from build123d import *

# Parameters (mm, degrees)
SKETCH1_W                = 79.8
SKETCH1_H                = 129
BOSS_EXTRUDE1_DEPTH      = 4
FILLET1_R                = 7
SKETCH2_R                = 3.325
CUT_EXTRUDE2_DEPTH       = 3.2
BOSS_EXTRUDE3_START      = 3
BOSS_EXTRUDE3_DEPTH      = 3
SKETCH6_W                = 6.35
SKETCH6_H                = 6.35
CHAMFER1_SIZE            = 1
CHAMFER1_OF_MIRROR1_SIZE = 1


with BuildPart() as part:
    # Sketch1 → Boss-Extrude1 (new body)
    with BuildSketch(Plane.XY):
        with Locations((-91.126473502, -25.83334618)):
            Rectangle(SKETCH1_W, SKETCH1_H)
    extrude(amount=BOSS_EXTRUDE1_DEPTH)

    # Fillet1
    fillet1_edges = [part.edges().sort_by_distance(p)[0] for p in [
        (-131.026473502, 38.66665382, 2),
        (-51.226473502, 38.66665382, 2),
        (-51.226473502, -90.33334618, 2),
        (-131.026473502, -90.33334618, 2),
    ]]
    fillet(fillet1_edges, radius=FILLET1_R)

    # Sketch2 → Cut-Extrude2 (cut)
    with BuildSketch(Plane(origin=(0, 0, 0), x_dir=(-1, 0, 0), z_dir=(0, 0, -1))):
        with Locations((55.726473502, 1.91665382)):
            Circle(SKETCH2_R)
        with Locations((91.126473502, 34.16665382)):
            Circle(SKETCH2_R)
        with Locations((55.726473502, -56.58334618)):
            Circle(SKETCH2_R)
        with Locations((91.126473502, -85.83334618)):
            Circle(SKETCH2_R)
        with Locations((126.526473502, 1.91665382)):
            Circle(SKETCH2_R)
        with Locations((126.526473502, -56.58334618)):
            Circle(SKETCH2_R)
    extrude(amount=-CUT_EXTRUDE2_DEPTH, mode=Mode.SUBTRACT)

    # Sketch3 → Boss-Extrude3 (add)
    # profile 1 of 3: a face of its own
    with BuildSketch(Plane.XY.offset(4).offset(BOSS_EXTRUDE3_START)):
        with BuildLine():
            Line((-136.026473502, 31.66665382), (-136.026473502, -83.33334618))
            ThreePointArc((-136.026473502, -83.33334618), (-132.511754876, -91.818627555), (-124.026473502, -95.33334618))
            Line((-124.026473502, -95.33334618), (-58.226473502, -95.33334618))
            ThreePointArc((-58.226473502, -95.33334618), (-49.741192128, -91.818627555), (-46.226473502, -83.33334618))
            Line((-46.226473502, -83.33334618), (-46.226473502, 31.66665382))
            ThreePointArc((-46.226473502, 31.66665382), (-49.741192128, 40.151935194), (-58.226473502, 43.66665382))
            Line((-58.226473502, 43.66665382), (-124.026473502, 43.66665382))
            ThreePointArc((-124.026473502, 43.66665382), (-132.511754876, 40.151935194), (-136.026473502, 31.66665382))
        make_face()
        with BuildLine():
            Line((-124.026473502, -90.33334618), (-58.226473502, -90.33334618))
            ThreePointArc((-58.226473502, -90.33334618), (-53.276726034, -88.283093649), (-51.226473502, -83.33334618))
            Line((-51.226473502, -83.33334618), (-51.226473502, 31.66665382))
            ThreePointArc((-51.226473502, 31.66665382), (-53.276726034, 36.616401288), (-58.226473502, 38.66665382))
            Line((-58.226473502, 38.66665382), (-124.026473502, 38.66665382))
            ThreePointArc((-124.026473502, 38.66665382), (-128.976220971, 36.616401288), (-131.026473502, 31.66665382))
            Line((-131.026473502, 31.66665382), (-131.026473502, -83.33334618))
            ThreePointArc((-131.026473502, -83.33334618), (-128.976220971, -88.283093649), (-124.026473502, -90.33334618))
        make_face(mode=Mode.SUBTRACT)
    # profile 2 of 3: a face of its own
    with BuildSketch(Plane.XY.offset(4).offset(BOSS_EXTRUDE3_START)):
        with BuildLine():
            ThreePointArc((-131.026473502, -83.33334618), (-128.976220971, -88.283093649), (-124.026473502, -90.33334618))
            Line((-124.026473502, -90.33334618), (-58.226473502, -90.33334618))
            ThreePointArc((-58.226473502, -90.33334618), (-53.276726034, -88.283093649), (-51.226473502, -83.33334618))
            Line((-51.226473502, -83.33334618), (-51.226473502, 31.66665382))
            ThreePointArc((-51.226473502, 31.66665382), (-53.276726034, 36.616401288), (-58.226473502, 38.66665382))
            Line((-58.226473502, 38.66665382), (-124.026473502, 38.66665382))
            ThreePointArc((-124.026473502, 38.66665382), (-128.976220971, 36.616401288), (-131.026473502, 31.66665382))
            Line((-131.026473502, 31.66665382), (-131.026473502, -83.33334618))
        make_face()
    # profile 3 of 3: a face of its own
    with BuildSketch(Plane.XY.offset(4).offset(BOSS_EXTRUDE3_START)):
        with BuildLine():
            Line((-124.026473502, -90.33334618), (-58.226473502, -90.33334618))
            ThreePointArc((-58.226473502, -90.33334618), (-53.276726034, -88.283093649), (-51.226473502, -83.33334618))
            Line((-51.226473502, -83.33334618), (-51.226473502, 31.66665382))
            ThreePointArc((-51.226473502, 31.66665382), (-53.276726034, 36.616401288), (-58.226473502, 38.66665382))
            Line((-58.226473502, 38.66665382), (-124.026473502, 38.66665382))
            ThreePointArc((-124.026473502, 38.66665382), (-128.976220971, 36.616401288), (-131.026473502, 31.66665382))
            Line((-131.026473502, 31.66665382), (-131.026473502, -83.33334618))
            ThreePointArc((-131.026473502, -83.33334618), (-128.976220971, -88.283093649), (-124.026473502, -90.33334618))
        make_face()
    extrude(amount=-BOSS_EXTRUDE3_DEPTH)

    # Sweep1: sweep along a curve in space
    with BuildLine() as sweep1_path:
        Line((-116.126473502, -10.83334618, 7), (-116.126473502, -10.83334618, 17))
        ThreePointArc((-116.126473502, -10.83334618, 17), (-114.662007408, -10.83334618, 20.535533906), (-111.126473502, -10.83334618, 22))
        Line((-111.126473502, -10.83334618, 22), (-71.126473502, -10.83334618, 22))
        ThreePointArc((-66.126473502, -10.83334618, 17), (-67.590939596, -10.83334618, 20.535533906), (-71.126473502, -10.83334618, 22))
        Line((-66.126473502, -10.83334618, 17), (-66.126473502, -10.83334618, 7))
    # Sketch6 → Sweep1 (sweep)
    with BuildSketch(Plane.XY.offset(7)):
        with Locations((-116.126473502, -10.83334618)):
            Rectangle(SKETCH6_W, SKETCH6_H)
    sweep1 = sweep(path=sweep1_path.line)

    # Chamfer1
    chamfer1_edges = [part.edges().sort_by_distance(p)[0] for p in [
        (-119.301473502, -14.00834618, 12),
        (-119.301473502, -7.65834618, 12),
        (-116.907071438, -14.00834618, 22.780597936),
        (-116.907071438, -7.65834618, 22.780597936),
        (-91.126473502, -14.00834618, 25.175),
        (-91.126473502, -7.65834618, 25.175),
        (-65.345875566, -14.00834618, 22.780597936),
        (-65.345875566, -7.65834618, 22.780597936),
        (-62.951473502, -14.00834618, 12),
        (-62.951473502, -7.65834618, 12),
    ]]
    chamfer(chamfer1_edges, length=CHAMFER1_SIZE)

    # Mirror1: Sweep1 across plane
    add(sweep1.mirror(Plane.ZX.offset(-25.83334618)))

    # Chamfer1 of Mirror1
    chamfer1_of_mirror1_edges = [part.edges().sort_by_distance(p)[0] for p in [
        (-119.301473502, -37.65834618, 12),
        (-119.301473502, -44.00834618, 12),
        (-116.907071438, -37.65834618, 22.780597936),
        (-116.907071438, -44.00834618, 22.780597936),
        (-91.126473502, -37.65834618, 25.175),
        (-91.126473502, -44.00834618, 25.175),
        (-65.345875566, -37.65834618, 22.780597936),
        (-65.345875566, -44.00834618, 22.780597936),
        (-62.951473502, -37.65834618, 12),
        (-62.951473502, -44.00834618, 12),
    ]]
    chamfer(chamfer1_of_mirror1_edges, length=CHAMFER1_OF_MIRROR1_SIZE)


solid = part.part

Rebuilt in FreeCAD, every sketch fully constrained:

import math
import FreeCAD as App
import Part
import Sketcher

V = App.Vector


def edges_at(feature, points):
    """Names of the edges that pass closest to the given points."""
    edges = feature.Shape.Edges
    near = lambda p: min(range(len(edges)), key=lambda i: edges[i].distToShape(Part.Vertex(*p))[0])
    return sorted({f"Edge{near(p) + 1}" for p in points})

doc = App.newDocument("Part")
body = doc.addObject("PartDesign::Body", "Body")

# Sketch on XY plane
sketch1 = body.newObject("Sketcher::SketchObject", "Sketch")
sketch1.AttachmentSupport = (doc.getObject("XY_Plane"), [""])
sketch1.MapMode = "FlatFace"
sketch1.addGeometry(Part.LineSegment(V(-131, 39, 0), V(-131, -90, 0)), False)
sketch1.addGeometry(Part.LineSegment(V(-131, -90, 0), V(-51, -90, 0)), False)
sketch1.addGeometry(Part.LineSegment(V(-51, -90, 0), V(-51, 39, 0)), False)
sketch1.addGeometry(Part.LineSegment(V(-51, 39, 0), V(-131, 39, 0)), False)
sketch1.addConstraint(Sketcher.Constraint("Coincident", 0, 2, 1, 1))
sketch1.addConstraint(Sketcher.Constraint("Coincident", 1, 2, 2, 1))
sketch1.addConstraint(Sketcher.Constraint("Coincident", 2, 2, 3, 1))
sketch1.addConstraint(Sketcher.Constraint("Coincident", 3, 2, 0, 1))
sketch1.addConstraint(Sketcher.Constraint("Vertical", 0))
sketch1.addConstraint(Sketcher.Constraint("Horizontal", 1))
sketch1.addConstraint(Sketcher.Constraint("Vertical", 2))
sketch1.addConstraint(Sketcher.Constraint("Horizontal", 3))
sketch1.addConstraint(Sketcher.Constraint("DistanceY", 0, 2, 0, 1, 129.0))
sketch1.addConstraint(Sketcher.Constraint("DistanceX", 1, 1, 1, 2, 79.8))
sketch1.addConstraint(Sketcher.Constraint("DistanceX", 0, 2, -1, 1, 131.026474))
sketch1.addConstraint(Sketcher.Constraint("DistanceY", 0, 2, -1, 1, 90.333346))
pad1 = body.newObject("PartDesign::Pad", "Pad")
pad1.Profile = sketch1
pad1.Length = 4
doc.recompute()

fillet = body.newObject("PartDesign::Fillet", "Fillet")
fillet.Base = (pad1, edges_at(pad1, [
    (-131.026, 38.667, 2),
    (-51.226, 38.667, 2),
    (-51.226, -90.333, 2),
    (-131.026, -90.333, 2),
]))
fillet.Radius = 7

# Sketch on XY plane
sketch2 = body.newObject("Sketcher::SketchObject", "Sketch001")
sketch2.AttachmentSupport = (doc.getObject("XY_Plane"), [""])
sketch2.MapMode = "FlatFace"
sketch2.addGeometry(Part.Circle(V(-55.7, 1.9, 0), V(0, 0, 1), 3.3), False)
sketch2.addGeometry(Part.Circle(V(-91.1, 34.2, 0), V(0, 0, 1), 3.3), False)
sketch2.addGeometry(Part.Circle(V(-55.7, -56.6, 0), V(0, 0, 1), 3.3), False)
sketch2.addGeometry(Part.Circle(V(-91.1, -85.8, 0), V(0, 0, 1), 3.3), False)
sketch2.addGeometry(Part.Circle(V(-126.5, 1.9, 0), V(0, 0, 1), 3.3), False)
sketch2.addGeometry(Part.Circle(V(-126.5, -56.6, 0), V(0, 0, 1), 3.3), False)
sketch2.addConstraint(Sketcher.Constraint("Equal", 0, 1))
sketch2.addConstraint(Sketcher.Constraint("Equal", 1, 2))
sketch2.addConstraint(Sketcher.Constraint("Equal", 2, 3))
sketch2.addConstraint(Sketcher.Constraint("Equal", 3, 4))
sketch2.addConstraint(Sketcher.Constraint("Equal", 4, 5))
sketch2.addConstraint(Sketcher.Constraint("Horizontal", 0, 3, 4, 3))
sketch2.addConstraint(Sketcher.Constraint("Horizontal", 2, 3, 5, 3))
sketch2.addConstraint(Sketcher.Constraint("Vertical", 0, 3, 2, 3))
sketch2.addConstraint(Sketcher.Constraint("Vertical", 1, 3, 3, 3))
sketch2.addConstraint(Sketcher.Constraint("Vertical", 4, 3, 5, 3))
sketch2.addConstraint(Sketcher.Constraint("Diameter", 0, 6.65))
sketch2.addConstraint(Sketcher.Constraint("DistanceY", 3, 3, 1, 3, 120.0))
sketch2.addConstraint(Sketcher.Constraint("DistanceX", 1, 3, 0, 3, 35.4))
sketch2.addConstraint(Sketcher.Constraint("DistanceY", 2, 3, 0, 3, 58.5))
sketch2.addConstraint(Sketcher.Constraint("DistanceX", 4, 3, 1, 3, 35.4))
sketch2.addConstraint(Sketcher.Constraint("DistanceY", 0, 3, 1, 3, 32.25))
sketch2.addConstraint(Sketcher.Constraint("DistanceX", 0, 3, -1, 1, 55.726474))
sketch2.addConstraint(Sketcher.Constraint("DistanceY", -1, 1, 0, 3, 1.916654))
pocket1 = body.newObject("PartDesign::Pocket", "Pocket")
pocket1.Profile = sketch2
pocket1.Length = 3.2
pocket1.Reversed = True

# Sketch on XY plane
sketch3 = body.newObject("Sketcher::SketchObject", "Sketch002")
sketch3.AttachmentSupport = (doc.getObject("XY_Plane"), [""])
sketch3.MapMode = "FlatFace"
sketch3.AttachmentOffset = App.Placement(V(0, 0, 7), App.Rotation())
sketch3.addGeometry(Part.LineSegment(V(-136, 32, 0), V(-136, -83, 0)), False)
sketch3.addGeometry(Part.ArcOfCircle(Part.Circle(V(-124, -83, 0), V(0, 0, 1), 12), math.radians(180), math.radians(270)), False)
sketch3.addGeometry(Part.LineSegment(V(-124, -95, 0), V(-58, -95, 0)), False)
sketch3.addGeometry(Part.ArcOfCircle(Part.Circle(V(-58, -83, 0), V(0, 0, 1), 12), math.radians(-90), math.radians(0)), False)
sketch3.addGeometry(Part.LineSegment(V(-46, -83, 0), V(-46, 32, 0)), False)
sketch3.addGeometry(Part.ArcOfCircle(Part.Circle(V(-58, 32, 0), V(0, 0, 1), 12), math.radians(0), math.radians(90)), False)
sketch3.addGeometry(Part.LineSegment(V(-58, 44, 0), V(-124, 44, 0)), False)
sketch3.addGeometry(Part.ArcOfCircle(Part.Circle(V(-124, 32, 0), V(0, 0, 1), 12), math.radians(90), math.radians(180)), False)
sketch3.addConstraint(Sketcher.Constraint("Tangent", 0, 2, 1, 1))
sketch3.addConstraint(Sketcher.Constraint("Tangent", 1, 2, 2, 1))
sketch3.addConstraint(Sketcher.Constraint("Tangent", 2, 2, 3, 1))
sketch3.addConstraint(Sketcher.Constraint("Tangent", 3, 2, 4, 1))
sketch3.addConstraint(Sketcher.Constraint("Tangent", 4, 2, 5, 1))
sketch3.addConstraint(Sketcher.Constraint("Tangent", 5, 2, 6, 1))
sketch3.addConstraint(Sketcher.Constraint("Tangent", 6, 2, 7, 1))
sketch3.addConstraint(Sketcher.Constraint("Tangent", 7, 2, 0, 1))
sketch3.addConstraint(Sketcher.Constraint("Vertical", 0))
sketch3.addConstraint(Sketcher.Constraint("Horizontal", 2))
sketch3.addConstraint(Sketcher.Constraint("Vertical", 4))
sketch3.addConstraint(Sketcher.Constraint("Horizontal", 6))
sketch3.addConstraint(Sketcher.Constraint("Equal", 1, 3))
sketch3.addConstraint(Sketcher.Constraint("Equal", 3, 5))
sketch3.addConstraint(Sketcher.Constraint("Equal", 5, 7))
sketch3.addConstraint(Sketcher.Constraint("Radius", 1, 12.0))
sketch3.addConstraint(Sketcher.Constraint("DistanceY", 0, 2, 0, 1, 115.0))
sketch3.addConstraint(Sketcher.Constraint("DistanceX", 2, 1, 2, 2, 65.8))
sketch3.addConstraint(Sketcher.Constraint("DistanceX", 1, 3, -1, 1, 124.026474))
sketch3.addConstraint(Sketcher.Constraint("DistanceY", 1, 3, -1, 1, 83.333346))
pad2 = body.newObject("PartDesign::Pad", "Pad001")
pad2.Profile = sketch3
pad2.Length = 3
pad2.Reversed = True

# Sketch on XY plane
sketch4 = body.newObject("Sketcher::SketchObject", "Sketch003")
sketch4.AttachmentSupport = (doc.getObject("XY_Plane"), [""])
sketch4.MapMode = "FlatFace"
sketch4.AttachmentOffset = App.Placement(V(0, 0, 7), App.Rotation())
sketch4.addGeometry(Part.LineSegment(V(-119, -8, 0), V(-119, -14, 0)), False)
sketch4.addGeometry(Part.LineSegment(V(-119, -14, 0), V(-113, -14, 0)), False)
sketch4.addGeometry(Part.LineSegment(V(-113, -14, 0), V(-113, -8, 0)), False)
sketch4.addGeometry(Part.LineSegment(V(-113, -8, 0), V(-119, -8, 0)), False)
sketch4.addConstraint(Sketcher.Constraint("Coincident", 0, 2, 1, 1))
sketch4.addConstraint(Sketcher.Constraint("Coincident", 1, 2, 2, 1))
sketch4.addConstraint(Sketcher.Constraint("Coincident", 2, 2, 3, 1))
sketch4.addConstraint(Sketcher.Constraint("Coincident", 3, 2, 0, 1))
sketch4.addConstraint(Sketcher.Constraint("Vertical", 0))
sketch4.addConstraint(Sketcher.Constraint("Horizontal", 1))
sketch4.addConstraint(Sketcher.Constraint("Vertical", 2))
sketch4.addConstraint(Sketcher.Constraint("Horizontal", 3))
sketch4.addConstraint(Sketcher.Constraint("Equal", 3, 0))
sketch4.addConstraint(Sketcher.Constraint("DistanceX", 1, 1, 1, 2, 6.35))
sketch4.addConstraint(Sketcher.Constraint("DistanceX", 0, 2, -1, 1, 119.301474))
sketch4.addConstraint(Sketcher.Constraint("DistanceY", 0, 2, -1, 1, 14.008346))

# Sketch on XZ plane
sketch5 = body.newObject("Sketcher::SketchObject", "Sketch004")
sketch5.AttachmentSupport = (doc.getObject("XZ_Plane"), [""])
sketch5.MapMode = "FlatFace"
sketch5.AttachmentOffset = App.Placement(V(0, 0, 10.833346), App.Rotation())
sketch5.addGeometry(Part.LineSegment(V(-116, 7, 0), V(-116, 17, 0)), False)
sketch5.addGeometry(Part.ArcOfCircle(Part.Circle(V(-111, 17, 0), V(0, 0, 1), 5), math.radians(90), math.radians(180)), False)
sketch5.addGeometry(Part.LineSegment(V(-111, 22, 0), V(-71, 22, 0)), False)
sketch5.addGeometry(Part.ArcOfCircle(Part.Circle(V(-71, 17, 0), V(0, 0, 1), 5), math.radians(0), math.radians(90)), False)
sketch5.addGeometry(Part.LineSegment(V(-66, 17, 0), V(-66, 7, 0)), False)
sketch5.addConstraint(Sketcher.Constraint("Tangent", 0, 2, 1, 2))
sketch5.addConstraint(Sketcher.Constraint("Tangent", 1, 1, 2, 1))
sketch5.addConstraint(Sketcher.Constraint("Tangent", 2, 2, 3, 2))
sketch5.addConstraint(Sketcher.Constraint("Tangent", 3, 1, 4, 1))
sketch5.addConstraint(Sketcher.Constraint("Vertical", 0))
sketch5.addConstraint(Sketcher.Constraint("Horizontal", 2))
sketch5.addConstraint(Sketcher.Constraint("Vertical", 4))
sketch5.addConstraint(Sketcher.Constraint("Equal", 1, 3))
sketch5.addConstraint(Sketcher.Constraint("Horizontal", 0, 1, 4, 2))
sketch5.addConstraint(Sketcher.Constraint("Radius", 1, 5.0))
sketch5.addConstraint(Sketcher.Constraint("DistanceX", 2, 1, 2, 2, 40.0))
sketch5.addConstraint(Sketcher.Constraint("DistanceY", 0, 1, 0, 2, 10.0))
sketch5.addConstraint(Sketcher.Constraint("DistanceY", -1, 1, 1, 3, 17.0))
sketch5.addConstraint(Sketcher.Constraint("DistanceX", 1, 3, -1, 1, 111.126474))
doc.recompute()

additivepipe = body.newObject("PartDesign::AdditivePipe", "AdditivePipe")
additivepipe.Profile = sketch4
additivepipe.Spine = (sketch5, ["Edge1", "Edge2", "Edge3", "Edge4", "Edge5"])
doc.recompute()

chamfer = body.newObject("PartDesign::Chamfer", "Chamfer")
chamfer.Base = (additivepipe, edges_at(additivepipe, [
    (-119.301, -14.008, 12),
    (-119.301, -7.658, 12),
    (-116.907, -14.008, 22.781),
    (-116.907, -7.658, 22.781),
    (-91.126, -14.008, 25.175),
    (-91.126, -7.658, 25.175),
    (-65.346, -14.008, 22.781),
    (-65.346, -7.658, 22.781),
    (-62.951, -14.008, 12),
    (-62.951, -7.658, 12),
]))
chamfer.Size = 1
doc.recompute()

datumplane = body.newObject("PartDesign::Plane", "DatumPlane")
datumplane.AttachmentSupport = (doc.getObject("XZ_Plane"), [""])
datumplane.MapMode = "FlatFace"
datumplane.AttachmentOffset = App.Placement(V(0, 0, 25.833346), App.Rotation())
mirrored = body.newObject("PartDesign::Mirrored", "Mirrored")
mirrored.Originals = [additivepipe]
mirrored.MirrorPlane = (datumplane, [""])
body.Tip = mirrored
doc.recompute()

chamfer2 = body.newObject("PartDesign::Chamfer", "Chamfer001")
chamfer2.Base = (mirrored, edges_at(mirrored, [
    (-119.301, -37.658, 12),
    (-119.301, -44.008, 12),
    (-116.907, -37.658, 22.781),
    (-116.907, -44.008, 22.781),
    (-91.126, -37.658, 25.175),
    (-91.126, -44.008, 25.175),
    (-65.346, -37.658, 22.781),
    (-65.346, -44.008, 22.781),
    (-62.951, -37.658, 12),
    (-62.951, -44.008, 12),
]))
chamfer2.Size = 1

doc.recompute()
